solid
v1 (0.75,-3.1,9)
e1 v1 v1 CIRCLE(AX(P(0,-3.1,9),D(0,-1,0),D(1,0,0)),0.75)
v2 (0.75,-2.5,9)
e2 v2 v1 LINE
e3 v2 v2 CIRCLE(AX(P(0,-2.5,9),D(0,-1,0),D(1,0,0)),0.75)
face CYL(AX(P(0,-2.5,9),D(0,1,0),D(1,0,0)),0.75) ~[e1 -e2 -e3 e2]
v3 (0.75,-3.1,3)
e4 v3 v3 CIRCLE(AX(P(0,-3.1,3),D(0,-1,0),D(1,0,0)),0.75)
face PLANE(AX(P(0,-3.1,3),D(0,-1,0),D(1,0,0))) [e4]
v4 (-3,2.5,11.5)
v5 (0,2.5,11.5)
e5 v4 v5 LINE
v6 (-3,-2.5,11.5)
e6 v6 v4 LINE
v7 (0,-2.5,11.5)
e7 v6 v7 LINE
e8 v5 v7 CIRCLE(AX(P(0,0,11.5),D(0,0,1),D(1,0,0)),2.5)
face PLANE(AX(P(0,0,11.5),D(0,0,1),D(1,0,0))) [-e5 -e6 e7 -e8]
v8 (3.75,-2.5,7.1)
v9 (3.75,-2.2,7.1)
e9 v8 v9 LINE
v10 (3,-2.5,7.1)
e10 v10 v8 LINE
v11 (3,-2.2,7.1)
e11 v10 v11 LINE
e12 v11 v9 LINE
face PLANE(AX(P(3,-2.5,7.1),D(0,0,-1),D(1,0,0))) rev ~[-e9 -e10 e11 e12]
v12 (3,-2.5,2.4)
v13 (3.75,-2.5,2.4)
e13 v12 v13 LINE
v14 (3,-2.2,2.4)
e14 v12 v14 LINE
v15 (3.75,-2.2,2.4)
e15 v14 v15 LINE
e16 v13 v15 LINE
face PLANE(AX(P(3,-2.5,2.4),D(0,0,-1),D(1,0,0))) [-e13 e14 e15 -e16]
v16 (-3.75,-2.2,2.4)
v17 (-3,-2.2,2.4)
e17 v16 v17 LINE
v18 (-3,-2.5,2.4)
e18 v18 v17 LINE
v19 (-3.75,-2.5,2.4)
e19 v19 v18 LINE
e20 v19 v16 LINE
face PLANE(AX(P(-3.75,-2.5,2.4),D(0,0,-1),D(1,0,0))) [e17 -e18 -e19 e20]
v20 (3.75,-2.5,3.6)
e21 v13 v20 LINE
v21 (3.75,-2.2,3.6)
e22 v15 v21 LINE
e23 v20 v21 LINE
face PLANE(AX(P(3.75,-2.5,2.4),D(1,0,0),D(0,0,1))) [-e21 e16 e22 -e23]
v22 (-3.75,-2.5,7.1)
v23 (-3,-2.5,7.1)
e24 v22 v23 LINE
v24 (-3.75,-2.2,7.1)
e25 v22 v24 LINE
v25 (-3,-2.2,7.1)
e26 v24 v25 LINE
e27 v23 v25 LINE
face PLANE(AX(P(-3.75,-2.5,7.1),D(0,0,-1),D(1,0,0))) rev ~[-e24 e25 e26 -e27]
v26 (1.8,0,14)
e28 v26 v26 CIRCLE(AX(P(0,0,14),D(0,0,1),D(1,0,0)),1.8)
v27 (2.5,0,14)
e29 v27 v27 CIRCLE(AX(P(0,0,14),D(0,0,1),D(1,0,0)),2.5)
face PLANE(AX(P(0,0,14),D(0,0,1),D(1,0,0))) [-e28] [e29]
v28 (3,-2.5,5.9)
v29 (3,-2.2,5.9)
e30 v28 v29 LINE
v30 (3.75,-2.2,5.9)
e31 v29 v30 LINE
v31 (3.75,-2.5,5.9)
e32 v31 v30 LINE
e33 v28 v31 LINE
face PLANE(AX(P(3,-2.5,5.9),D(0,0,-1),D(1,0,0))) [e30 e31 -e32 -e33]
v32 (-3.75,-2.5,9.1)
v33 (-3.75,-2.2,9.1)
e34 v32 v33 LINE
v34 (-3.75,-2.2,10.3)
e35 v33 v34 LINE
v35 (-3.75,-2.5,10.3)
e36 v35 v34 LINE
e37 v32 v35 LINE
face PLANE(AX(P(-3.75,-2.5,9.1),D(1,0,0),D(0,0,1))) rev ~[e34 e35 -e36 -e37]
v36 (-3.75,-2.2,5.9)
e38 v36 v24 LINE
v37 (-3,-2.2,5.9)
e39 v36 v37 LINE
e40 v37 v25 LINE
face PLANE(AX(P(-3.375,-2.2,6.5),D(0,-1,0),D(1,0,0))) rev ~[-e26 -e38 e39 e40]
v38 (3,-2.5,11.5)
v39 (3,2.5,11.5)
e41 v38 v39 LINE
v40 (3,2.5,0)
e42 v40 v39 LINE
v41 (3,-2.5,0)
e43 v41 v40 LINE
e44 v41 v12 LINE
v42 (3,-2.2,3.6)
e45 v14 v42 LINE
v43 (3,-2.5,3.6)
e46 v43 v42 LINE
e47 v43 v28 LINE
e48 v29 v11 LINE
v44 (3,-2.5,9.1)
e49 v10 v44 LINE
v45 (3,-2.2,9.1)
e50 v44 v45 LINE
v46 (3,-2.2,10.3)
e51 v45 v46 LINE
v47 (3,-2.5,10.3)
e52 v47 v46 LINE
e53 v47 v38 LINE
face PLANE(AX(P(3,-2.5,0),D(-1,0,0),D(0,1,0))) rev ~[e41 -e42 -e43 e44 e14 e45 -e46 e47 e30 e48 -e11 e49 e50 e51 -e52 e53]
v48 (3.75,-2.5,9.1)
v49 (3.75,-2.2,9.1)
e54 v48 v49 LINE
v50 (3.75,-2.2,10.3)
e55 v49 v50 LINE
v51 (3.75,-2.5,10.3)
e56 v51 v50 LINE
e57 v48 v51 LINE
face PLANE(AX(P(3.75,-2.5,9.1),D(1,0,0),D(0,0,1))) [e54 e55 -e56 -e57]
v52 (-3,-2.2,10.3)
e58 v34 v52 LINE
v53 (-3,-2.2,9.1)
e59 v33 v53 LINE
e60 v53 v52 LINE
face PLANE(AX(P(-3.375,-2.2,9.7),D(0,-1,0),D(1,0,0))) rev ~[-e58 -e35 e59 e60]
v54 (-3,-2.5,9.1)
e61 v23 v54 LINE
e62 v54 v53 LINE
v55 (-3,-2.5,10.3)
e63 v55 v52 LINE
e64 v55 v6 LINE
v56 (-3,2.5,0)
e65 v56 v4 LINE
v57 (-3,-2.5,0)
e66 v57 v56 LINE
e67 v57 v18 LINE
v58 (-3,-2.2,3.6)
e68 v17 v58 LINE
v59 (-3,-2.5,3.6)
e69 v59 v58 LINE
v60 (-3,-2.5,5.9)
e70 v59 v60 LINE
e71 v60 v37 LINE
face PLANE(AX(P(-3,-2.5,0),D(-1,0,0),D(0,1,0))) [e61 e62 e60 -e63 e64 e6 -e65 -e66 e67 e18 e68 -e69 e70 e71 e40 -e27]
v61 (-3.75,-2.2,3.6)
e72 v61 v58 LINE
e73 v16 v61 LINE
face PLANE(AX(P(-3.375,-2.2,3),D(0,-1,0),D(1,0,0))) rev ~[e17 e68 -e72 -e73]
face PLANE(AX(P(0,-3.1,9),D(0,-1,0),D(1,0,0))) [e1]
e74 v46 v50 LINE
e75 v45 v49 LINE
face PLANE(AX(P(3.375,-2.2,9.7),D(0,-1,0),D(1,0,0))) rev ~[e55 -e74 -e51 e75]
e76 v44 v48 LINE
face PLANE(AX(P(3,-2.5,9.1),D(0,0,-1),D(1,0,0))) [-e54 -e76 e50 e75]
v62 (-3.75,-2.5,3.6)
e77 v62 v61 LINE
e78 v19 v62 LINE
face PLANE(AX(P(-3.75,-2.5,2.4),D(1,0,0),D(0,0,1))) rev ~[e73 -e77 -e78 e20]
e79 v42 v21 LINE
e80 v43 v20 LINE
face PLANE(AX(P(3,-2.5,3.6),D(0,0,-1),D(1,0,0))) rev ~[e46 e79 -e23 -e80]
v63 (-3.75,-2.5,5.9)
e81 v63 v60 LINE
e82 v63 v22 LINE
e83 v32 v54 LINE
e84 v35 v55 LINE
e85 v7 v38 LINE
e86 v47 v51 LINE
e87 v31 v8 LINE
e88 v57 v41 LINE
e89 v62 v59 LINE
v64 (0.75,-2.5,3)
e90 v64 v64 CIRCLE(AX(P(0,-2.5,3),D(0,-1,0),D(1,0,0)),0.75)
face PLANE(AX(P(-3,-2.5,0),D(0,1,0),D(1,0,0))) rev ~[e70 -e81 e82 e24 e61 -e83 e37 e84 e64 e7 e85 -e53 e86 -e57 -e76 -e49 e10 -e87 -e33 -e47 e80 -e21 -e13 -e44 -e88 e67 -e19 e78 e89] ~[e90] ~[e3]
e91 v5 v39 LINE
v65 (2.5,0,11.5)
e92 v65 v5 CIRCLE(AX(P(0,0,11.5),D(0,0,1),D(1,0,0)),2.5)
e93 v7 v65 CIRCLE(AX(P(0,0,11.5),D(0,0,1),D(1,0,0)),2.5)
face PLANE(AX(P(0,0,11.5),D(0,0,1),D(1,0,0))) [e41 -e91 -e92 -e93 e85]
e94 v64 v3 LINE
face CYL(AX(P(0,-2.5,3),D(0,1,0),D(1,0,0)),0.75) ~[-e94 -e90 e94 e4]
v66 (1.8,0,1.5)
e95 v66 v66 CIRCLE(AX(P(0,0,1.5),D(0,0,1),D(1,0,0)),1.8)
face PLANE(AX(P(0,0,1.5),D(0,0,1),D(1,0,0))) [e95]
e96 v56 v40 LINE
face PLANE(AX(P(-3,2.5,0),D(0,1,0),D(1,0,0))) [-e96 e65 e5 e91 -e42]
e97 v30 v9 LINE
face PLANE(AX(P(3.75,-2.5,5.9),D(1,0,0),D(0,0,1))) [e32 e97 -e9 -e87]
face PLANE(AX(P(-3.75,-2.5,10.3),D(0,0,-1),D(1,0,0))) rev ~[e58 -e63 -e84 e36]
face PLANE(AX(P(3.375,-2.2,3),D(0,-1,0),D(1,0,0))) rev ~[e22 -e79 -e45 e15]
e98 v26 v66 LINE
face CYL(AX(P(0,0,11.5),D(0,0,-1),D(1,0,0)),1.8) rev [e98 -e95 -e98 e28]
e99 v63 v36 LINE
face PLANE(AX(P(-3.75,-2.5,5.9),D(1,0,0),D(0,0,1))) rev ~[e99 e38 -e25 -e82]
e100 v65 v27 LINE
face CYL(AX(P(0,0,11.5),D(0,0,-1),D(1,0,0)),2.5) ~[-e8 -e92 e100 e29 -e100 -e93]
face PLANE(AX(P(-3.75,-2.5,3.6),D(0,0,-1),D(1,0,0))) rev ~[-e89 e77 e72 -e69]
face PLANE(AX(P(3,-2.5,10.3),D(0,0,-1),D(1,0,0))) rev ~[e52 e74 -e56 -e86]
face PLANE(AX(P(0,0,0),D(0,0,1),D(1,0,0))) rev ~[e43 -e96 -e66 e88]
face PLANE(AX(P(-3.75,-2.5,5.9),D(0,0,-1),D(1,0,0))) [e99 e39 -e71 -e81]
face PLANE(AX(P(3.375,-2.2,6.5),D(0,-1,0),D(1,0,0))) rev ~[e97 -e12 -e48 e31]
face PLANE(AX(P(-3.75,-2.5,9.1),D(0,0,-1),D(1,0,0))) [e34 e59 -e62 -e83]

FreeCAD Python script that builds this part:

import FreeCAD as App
import Part
import Sketcher
from FreeCAD import Vector

doc = App.newDocument("Part")
params = doc.addObject("Spreadsheet::Sheet", "Params")
for row, (alias, value) in enumerate([
    ("sketch1_width", "6 mm"),
    ("sketch1_height", "5 mm"),
    ("pad1_length", "11.5 mm"),
    ("sketch2_diameter", "5 mm"),
    ("sketch2_diameter2", "3.6 mm"),
    ("pad2_length", "2.5 mm"),
    ("sketch3_diameter", "3.6 mm"),
    ("pocket1_length", "10 mm"),
    ("sketch4_height", "1.2 mm"),
    ("sketch4_width", "0.75 mm"),
    ("pad3_length", "0.3 mm"),
    ("sketch5_diameter", "1.5 mm"),
    ("pad4_length", "0.6 mm"),
], start=1):
    params.set(f"A{row}", alias)
    params.set(f"B{row}", "=" + value)
    params.setAlias(f"B{row}", alias)

body = doc.addObject("PartDesign::Body", "Body")

# Sketch on XY plane
sketch1 = body.newObject("Sketcher::SketchObject", "Sketch")
sketch1.AttachmentSupport = (doc.getObject("XY_Plane"), [""])
sketch1.MapMode = "FlatFace"
sketch1.addGeometry(Part.LineSegment(Vector(-3, 2, 0), Vector(-3, -2, 0)), False)
sketch1.addGeometry(Part.LineSegment(Vector(-3, -2, 0), Vector(3, -2, 0)), False)
sketch1.addGeometry(Part.LineSegment(Vector(3, -2, 0), Vector(3, 2, 0)), False)
sketch1.addGeometry(Part.LineSegment(Vector(3, 2, 0), Vector(-3, 2, 0)), False)
sketch1.addConstraint(Sketcher.Constraint("Coincident", 0, 2, 1, 1))
sketch1.addConstraint(Sketcher.Constraint("Coincident", 1, 2, 2, 1))
sketch1.addConstraint(Sketcher.Constraint("Coincident", 2, 2, 3, 1))
sketch1.addConstraint(Sketcher.Constraint("Coincident", 3, 2, 0, 1))
sketch1.addConstraint(Sketcher.Constraint("Vertical", 0))
sketch1.addConstraint(Sketcher.Constraint("Horizontal", 1))
sketch1.addConstraint(Sketcher.Constraint("Vertical", 2))
sketch1.addConstraint(Sketcher.Constraint("Horizontal", 3))
sketch1.addConstraint(Sketcher.Constraint("Symmetric", 0, 2, 2, 2, -1, 1))
sketch1.addConstraint(Sketcher.Constraint("DistanceX", 1, 1, 1, 2, 6.0))
sketch1.addConstraint(Sketcher.Constraint("DistanceY", 0, 2, 0, 1, 5.0))
sketch1.setExpression("Constraints[9]", "Params.sketch1_width")
sketch1.setExpression("Constraints[10]", "Params.sketch1_height")
pad1 = body.newObject("PartDesign::Pad", "Pad")
pad1.Profile = sketch1
pad1.setExpression("Length", "Params.pad1_length")

# Sketch on XY plane
sketch2 = body.newObject("Sketcher::SketchObject", "Sketch001")
sketch2.AttachmentSupport = (doc.getObject("XY_Plane"), [""])
sketch2.MapMode = "FlatFace"
sketch2.AttachmentOffset = App.Placement(Vector(0, 0, 11.5), App.Rotation())
sketch2.addGeometry(Part.Circle(Vector(0, 0, 0), Vector(0, 0, 1), 2.5), False)
sketch2.addGeometry(Part.Circle(Vector(0, 0, 0), Vector(0, 0, 1), 1.8), False)
sketch2.addConstraint(Sketcher.Constraint("Coincident", 0, 3, -1, 1))
sketch2.addConstraint(Sketcher.Constraint("Coincident", 1, 3, -1, 1))
sketch2.addConstraint(Sketcher.Constraint("Diameter", 0, 5.0))
sketch2.addConstraint(Sketcher.Constraint("Diameter", 1, 3.6))
sketch2.setExpression("Constraints[2]", "Params.sketch2_diameter")
sketch2.setExpression("Constraints[3]", "Params.sketch2_diameter2")
pad2 = body.newObject("PartDesign::Pad", "Pad001")
pad2.Profile = sketch2
pad2.setExpression("Length", "Params.pad2_length")

# Sketch on XY plane
sketch3 = body.newObject("Sketcher::SketchObject", "Sketch002")
sketch3.AttachmentSupport = (doc.getObject("XY_Plane"), [""])
sketch3.MapMode = "FlatFace"
sketch3.AttachmentOffset = App.Placement(Vector(0, 0, 11.5), App.Rotation())
sketch3.addGeometry(Part.Circle(Vector(0, 0, 0), Vector(0, 0, 1), 1.8), False)
sketch3.addConstraint(Sketcher.Constraint("Coincident", 0, 3, -1, 1))
sketch3.addConstraint(Sketcher.Constraint("Diameter", 0, 3.6))
sketch3.setExpression("Constraints[1]", "Params.sketch3_diameter")
pocket1 = body.newObject("PartDesign::Pocket", "Pocket")
pocket1.Profile = sketch3
pocket1.setExpression("Length", "Params.pocket1_length")

# Sketch on XZ plane
sketch4 = body.newObject("Sketcher::SketchObject", "Sketch003")
sketch4.AttachmentSupport = (doc.getObject("XZ_Plane"), [""])
sketch4.MapMode = "FlatFace"
sketch4.AttachmentOffset = App.Placement(Vector(0, 0, 2.5), App.Rotation())
sketch4.addGeometry(Part.LineSegment(Vector(3, 10.3, 0), Vector(3, 9.1, 0)), False)
sketch4.addGeometry(Part.LineSegment(Vector(3, 9.1, 0), Vector(3.8, 9.1, 0)), False)
sketch4.addGeometry(Part.LineSegment(Vector(3.8, 9.1, 0), Vector(3.8, 10.3, 0)), False)
sketch4.addGeometry(Part.LineSegment(Vector(3.8, 10.3, 0), Vector(3, 10.3, 0)), False)
sketch4.addGeometry(Part.LineSegment(Vector(3, 7.1, 0), Vector(3, 5.9, 0)), False)
sketch4.addGeometry(Part.LineSegment(Vector(3, 5.9, 0), Vector(3.8, 5.9, 0)), False)
sketch4.addGeometry(Part.LineSegment(Vector(3.8, 5.9, 0), Vector(3.8, 7.1, 0)), False)
sketch4.addGeometry(Part.LineSegment(Vector(3.8, 7.1, 0), Vector(3, 7.1, 0)), False)
sketch4.addGeometry(Part.LineSegment(Vector(3, 3.6, 0), Vector(3, 2.4, 0)), False)
sketch4.addGeometry(Part.LineSegment(Vector(3, 2.4, 0), Vector(3.8, 2.4, 0)), False)
sketch4.addGeometry(Part.LineSegment(Vector(3.8, 2.4, 0), Vector(3.8, 3.6, 0)), False)
sketch4.addGeometry(Part.LineSegment(Vector(3.8, 3.6, 0), Vector(3, 3.6, 0)), False)
sketch4.addGeometry(Part.LineSegment(Vector(-3.8, 3.6, 0), Vector(-3.8, 2.4, 0)), False)
sketch4.addGeometry(Part.LineSegment(Vector(-3.8, 2.4, 0), Vector(-3, 2.4, 0)), False)
sketch4.addGeometry(Part.LineSegment(Vector(-3, 2.4, 0), Vector(-3, 3.6, 0)), False)
sketch4.addGeometry(Part.LineSegment(Vector(-3, 3.6, 0), Vector(-3.8, 3.6, 0)), False)
sketch4.addGeometry(Part.LineSegment(Vector(-3.8, 7.1, 0), Vector(-3.8, 5.9, 0)), False)
sketch4.addGeometry(Part.LineSegment(Vector(-3.8, 5.9, 0), Vector(-3, 5.9, 0)), False)
sketch4.addGeometry(Part.LineSegment(Vector(-3, 5.9, 0), Vector(-3, 7.1, 0)), False)
sketch4.addGeometry(Part.LineSegment(Vector(-3, 7.1, 0), Vector(-3.8, 7.1, 0)), False)
sketch4.addGeometry(Part.LineSegment(Vector(-3.8, 10.3, 0), Vector(-3.8, 9.1, 0)), False)
sketch4.addGeometry(Part.LineSegment(Vector(-3.8, 9.1, 0), Vector(-3, 9.1, 0)), False)
sketch4.addGeometry(Part.LineSegment(Vector(-3, 9.1, 0), Vector(-3, 10.3, 0)), False)
sketch4.addGeometry(Part.LineSegment(Vector(-3, 10.3, 0), Vector(-3.8, 10.3, 0)), False)
sketch4.addConstraint(Sketcher.Constraint("Coincident", 0, 2, 1, 1))
sketch4.addConstraint(Sketcher.Constraint("Coincident", 1, 2, 2, 1))
sketch4.addConstraint(Sketcher.Constraint("Coincident", 2, 2, 3, 1))
sketch4.addConstraint(Sketcher.Constraint("Coincident", 3, 2, 0, 1))
sketch4.addConstraint(Sketcher.Constraint("Coincident", 4, 2, 5, 1))
sketch4.addConstraint(Sketcher.Constraint("Coincident", 5, 2, 6, 1))
sketch4.addConstraint(Sketcher.Constraint("Coincident", 6, 2, 7, 1))
sketch4.addConstraint(Sketcher.Constraint("Coincident", 7, 2, 4, 1))
sketch4.addConstraint(Sketcher.Constraint("Coincident", 8, 2, 9, 1))
sketch4.addConstraint(Sketcher.Constraint("Coincident", 9, 2, 10, 1))
sketch4.addConstraint(Sketcher.Constraint("Coincident", 10, 2, 11, 1))
sketch4.addConstraint(Sketcher.Constraint("Coincident", 11, 2, 8, 1))
sketch4.addConstraint(Sketcher.Constraint("Coincident", 12, 2, 13, 1))
sketch4.addConstraint(Sketcher.Constraint("Coincident", 13, 2, 14, 1))
sketch4.addConstraint(Sketcher.Constraint("Coincident", 14, 2, 15, 1))
sketch4.addConstraint(Sketcher.Constraint("Coincident", 15, 2, 12, 1))
sketch4.addConstraint(Sketcher.Constraint("Coincident", 16, 2, 17, 1))
sketch4.addConstraint(Sketcher.Constraint("Coincident", 17, 2, 18, 1))
sketch4.addConstraint(Sketcher.Constraint("Coincident", 18, 2, 19, 1))
sketch4.addConstraint(Sketcher.Constraint("Coincident", 19, 2, 16, 1))
sketch4.addConstraint(Sketcher.Constraint("Coincident", 20, 2, 21, 1))
sketch4.addConstraint(Sketcher.Constraint("Coincident", 21, 2, 22, 1))
sketch4.addConstraint(Sketcher.Constraint("Coincident", 22, 2, 23, 1))
sketch4.addConstraint(Sketcher.Constraint("Coincident", 23, 2, 20, 1))
sketch4.addConstraint(Sketcher.Constraint("Vertical", 0))
sketch4.addConstraint(Sketcher.Constraint("Horizontal", 1))
sketch4.addConstraint(Sketcher.Constraint("Vertical", 2))
sketch4.addConstraint(Sketcher.Constraint("Horizontal", 3))
sketch4.addConstraint(Sketcher.Constraint("Vertical", 4))
sketch4.addConstraint(Sketcher.Constraint("Horizontal", 5))
sketch4.addConstraint(Sketcher.Constraint("Vertical", 6))
sketch4.addConstraint(Sketcher.Constraint("Horizontal", 7))
sketch4.addConstraint(Sketcher.Constraint("Vertical", 8))
sketch4.addConstraint(Sketcher.Constraint("Horizontal", 9))
sketch4.addConstraint(Sketcher.Constraint("Vertical", 10))
sketch4.addConstraint(Sketcher.Constraint("Horizontal", 11))
sketch4.addConstraint(Sketcher.Constraint("Vertical", 12))
sketch4.addConstraint(Sketcher.Constraint("Horizontal", 13))
sketch4.addConstraint(Sketcher.Constraint("Vertical", 14))
sketch4.addConstraint(Sketcher.Constraint("Horizontal", 15))
sketch4.addConstraint(Sketcher.Constraint("Vertical", 16))
sketch4.addConstraint(Sketcher.Constraint("Horizontal", 17))
sketch4.addConstraint(Sketcher.Constraint("Vertical", 18))
sketch4.addConstraint(Sketcher.Constraint("Horizontal", 19))
sketch4.addConstraint(Sketcher.Constraint("Vertical", 20))
sketch4.addConstraint(Sketcher.Constraint("Horizontal", 21))
sketch4.addConstraint(Sketcher.Constraint("Vertical", 22))
sketch4.addConstraint(Sketcher.Constraint("Horizontal", 23))
sketch4.addConstraint(Sketcher.Constraint("Symmetric", 9, 2, 12, 2, -2))
sketch4.addConstraint(Sketcher.Constraint("Symmetric", 11, 2, 14, 2, -2))
sketch4.addConstraint(Sketcher.Constraint("Symmetric", 5, 2, 16, 2, -2))
sketch4.addConstraint(Sketcher.Constraint("Symmetric", 7, 2, 18, 2, -2))
sketch4.addConstraint(Sketcher.Constraint("Symmetric", 1, 2, 20, 2, -2))
sketch4.addConstraint(Sketcher.Constraint("Symmetric", 3, 2, 22, 2, -2))
sketch4.addConstraint(Sketcher.Constraint("Vertical", 3, 2, 4, 2))
sketch4.addConstraint(Sketcher.Constraint("Vertical", 2, 2, 5, 2))
sketch4.addConstraint(Sketcher.Constraint("Vertical", 7, 2, 8, 2))
sketch4.addConstraint(Sketcher.Constraint("Vertical", 6, 2, 9, 2))
sketch4.addConstraint(Sketcher.Constraint("Equal", 2, 4))
sketch4.addConstraint(Sketcher.Constraint("Equal", 6, 8))
sketch4.addConstraint(Sketcher.Constraint("DistanceY", 0, 2, 0, 1, 1.2))
sketch4.addConstraint(Sketcher.Constraint("DistanceX", -1, 1, 0, 2, 3.0))
sketch4.addConstraint(Sketcher.Constraint("DistanceY", 6, 2, 1, 2, 2.0))
sketch4.addConstraint(Sketcher.Constraint("DistanceX", 1, 1, 1, 2, 0.75))
sketch4.addConstraint(Sketcher.Constraint("DistanceY", -1, 1, 0, 2, 9.1))
sketch4.addConstraint(Sketcher.Constraint("DistanceY", -1, 1, 8, 2, 2.4))
sketch4.setExpression("Constraints[60]", "Params.sketch4_height")
sketch4.setExpression("Constraints[63]", "Params.sketch4_width")
pad3 = body.newObject("PartDesign::Pad", "Pad002")
pad3.Profile = sketch4
pad3.setExpression("Length", "Params.pad3_length")
pad3.Reversed = True

# Sketch on XZ plane
sketch5 = body.newObject("Sketcher::SketchObject", "Sketch004")
sketch5.AttachmentSupport = (doc.getObject("XZ_Plane"), [""])
sketch5.MapMode = "FlatFace"
sketch5.AttachmentOffset = App.Placement(Vector(0, 0, 2.5), App.Rotation())
sketch5.addGeometry(Part.Circle(Vector(0, 9, 0), Vector(0, 0, 1), 0.8), False)
sketch5.addGeometry(Part.Circle(Vector(0, 3, 0), Vector(0, 0, 1), 0.8), False)
sketch5.addConstraint(Sketcher.Constraint("Equal", 0, 1))
sketch5.addConstraint(Sketcher.Constraint("PointOnObject", 0, 3, -2))
sketch5.addConstraint(Sketcher.Constraint("PointOnObject", 1, 3, -2))
sketch5.addConstraint(Sketcher.Constraint("Diameter", 0, 1.5))
sketch5.addConstraint(Sketcher.Constraint("DistanceY", -1, 1, 0, 3, 9.0))
sketch5.addConstraint(Sketcher.Constraint("DistanceY", -1, 1, 1, 3, 3.0))
sketch5.setExpression("Constraints[3]", "Params.sketch5_diameter")
pad4 = body.newObject("PartDesign::Pad", "Pad003")
pad4.Profile = sketch5
pad4.setExpression("Length", "Params.pad4_length")

doc.recompute()
